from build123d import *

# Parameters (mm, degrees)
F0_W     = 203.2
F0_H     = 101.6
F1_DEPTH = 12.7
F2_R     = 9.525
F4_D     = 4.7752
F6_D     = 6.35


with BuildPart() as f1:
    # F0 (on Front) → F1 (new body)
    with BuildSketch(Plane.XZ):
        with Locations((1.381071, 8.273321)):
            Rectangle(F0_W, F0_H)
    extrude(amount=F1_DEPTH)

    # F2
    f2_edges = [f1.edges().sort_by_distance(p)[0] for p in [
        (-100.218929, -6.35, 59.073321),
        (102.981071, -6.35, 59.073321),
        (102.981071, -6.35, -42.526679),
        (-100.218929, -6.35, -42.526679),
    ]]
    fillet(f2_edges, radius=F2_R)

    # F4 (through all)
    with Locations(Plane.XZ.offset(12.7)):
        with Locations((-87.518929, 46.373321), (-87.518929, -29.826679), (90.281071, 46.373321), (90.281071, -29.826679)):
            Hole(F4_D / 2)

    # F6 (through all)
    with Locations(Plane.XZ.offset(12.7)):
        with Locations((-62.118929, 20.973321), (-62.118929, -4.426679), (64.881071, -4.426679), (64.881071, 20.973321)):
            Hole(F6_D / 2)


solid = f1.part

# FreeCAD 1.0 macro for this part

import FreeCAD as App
import Part
import Sketcher

V = App.Vector
Q = App.Units.Quantity


def edges_at(feature, points):
    """Names of the edges that pass closest to the given points."""
    edges = feature.Shape.Edges
    near = lambda p: min(range(len(edges)), key=lambda i: edges[i].distToShape(Part.Vertex(*p))[0])
    return sorted({f"Edge{near(p) + 1}" for p in points})


def add_polygon(sketch, points):
    """Adds a closed chain of lines whose ends are joined by coincident constraints."""
    first, n = sketch.GeometryCount, len(points)
    for a, b in zip(points, points[1:] + points[:1]):
        sketch.addGeometry(Part.LineSegment(App.Vector(*a, 0), App.Vector(*b, 0)), False)
    for i in range(n):
        sketch.addConstraint(Sketcher.Constraint("Coincident", first + i, 2, first + (i + 1) % n, 1))

doc = App.newDocument("Part")
params = doc.addObject("Spreadsheet::Sheet", "Params")
for row, (alias, value) in enumerate([
    ("sketch1_width", "8 in"),
    ("sketch1_height", "4 in"),
    ("pad1_length", "0.5 in"),
    ("fillet_radius", "0.375 in"),
    ("sketch2_diameter", "0.188 in"),
    ("hole_diameter", "0.188 in"),
    ("sketch3_diameter", "0.25 in"),
    ("hole2_diameter", "0.25 in"),
], start=1):
    params.set(f"A{row}", alias)
    params.set(f"B{row}", "=" + value)
    params.setAlias(f"B{row}", alias)

body = doc.addObject("PartDesign::Body", "Body")

# Sketch on XZ plane
sketch1 = doc.addObject("Sketcher::SketchObject", "Sketch")
body.addObject(sketch1)
sketch1.AttachmentSupport = (doc.XZ_Plane, [""])
sketch1.MapMode = "FlatFace"
add_polygon(sketch1, [(-100.218929, 59.073321), (-100.218929, -42.526679), (102.981071, -42.526679), (102.981071, 59.073321)])  # lines 0-3
sketch1.addConstraint([
    Sketcher.Constraint("Vertical", 0),
    Sketcher.Constraint("Horizontal", 1),
    Sketcher.Constraint("Vertical", 2),
    Sketcher.Constraint("Horizontal", 3),
    Sketcher.Constraint("DistanceX", 1, 1, 1, 2, Q("8 in")),
    Sketcher.Constraint("DistanceY", 0, 2, 0, 1, Q("4 in")),
    Sketcher.Constraint("DistanceX", 0, 2, -1, 1, Q("100.218929 mm")),
    Sketcher.Constraint("DistanceY", 0, 2, -1, 1, Q("42.526679 mm")),
])
sketch1.setExpression("Constraints[8]", "Params.sketch1_width")
sketch1.setExpression("Constraints[9]", "Params.sketch1_height")
pad1 = doc.addObject("PartDesign::Pad", "Pad")
body.addObject(pad1)
pad1.Profile = sketch1
pad1.setExpression("Length", "Params.pad1_length")
doc.recompute()

fillet = doc.addObject("PartDesign::Fillet", "Fillet")
body.addObject(fillet)
fillet.Base = (pad1, edges_at(pad1, [
    (-100.219, -6.35, 59.073),
    (102.981, -6.35, 59.073),
    (102.981, -6.35, -42.527),
    (-100.219, -6.35, -42.527),
]))
fillet.setExpression("Radius", "Params.fillet_radius")

# Sketch on XZ plane
sketch2 = doc.addObject("Sketcher::SketchObject", "Sketch001")
body.addObject(sketch2)
sketch2.AttachmentSupport = (doc.XZ_Plane, [""])
sketch2.MapMode = "FlatFace"
sketch2.AttachmentOffset = App.Placement(V(0, 0, 0.5 * 25.4), App.Rotation())
sketch2.addGeometry([
    Part.Circle(V(-87.518929, 46.373321, 0), V(0, 0, 1), 2.3876),
    Part.Circle(V(-87.518929, -29.826679, 0), V(0, 0, 1), 2.3876),
    Part.Circle(V(90.281071, 46.373321, 0), V(0, 0, 1), 2.3876),
    Part.Circle(V(90.281071, -29.826679, 0), V(0, 0, 1), 2.3876),
], False)
sketch2.addConstraint([
    Sketcher.Constraint("Equal", 0, 1),
    Sketcher.Constraint("Equal", 1, 2),
    Sketcher.Constraint("Equal", 2, 3),
    Sketcher.Constraint("Horizontal", 0, 3, 2, 3),
    Sketcher.Constraint("Horizontal", 1, 3, 3, 3),
    Sketcher.Constraint("Vertical", 0, 3, 1, 3),
    Sketcher.Constraint("Vertical", 2, 3, 3, 3),
    Sketcher.Constraint("Diameter", 0, Q("0.188 in")),
    Sketcher.Constraint("DistanceY", 1, 3, 0, 3, Q("3 in")),
    Sketcher.Constraint("DistanceX", 0, 3, 2, 3, Q("7 in")),
    Sketcher.Constraint("DistanceX", 0, 3, -1, 1, Q("87.518929 mm")),
    Sketcher.Constraint("DistanceY", -1, 1, 0, 3, Q("46.373321 mm")),
])
sketch2.setExpression("Constraints[7]", "Params.sketch2_diameter")
doc.recompute()
hole = doc.addObject("PartDesign::Hole", "Hole")
body.addObject(hole)
hole.Profile = sketch2
hole.ThreadType = "None"
hole.setExpression("Diameter", "Params.hole_diameter")
hole.DepthType = "ThroughAll"

# Sketch on XZ plane
sketch3 = doc.addObject("Sketcher::SketchObject", "Sketch002")
body.addObject(sketch3)
sketch3.AttachmentSupport = (doc.XZ_Plane, [""])
sketch3.MapMode = "FlatFace"
sketch3.AttachmentOffset = App.Placement(V(0, 0, 0.5 * 25.4), App.Rotation())
sketch3.addGeometry([
    Part.Circle(V(-62.118929, 20.973321, 0), V(0, 0, 1), 3.175),
    Part.Circle(V(-62.118929, -4.426679, 0), V(0, 0, 1), 3.175),
    Part.Circle(V(64.881071, -4.426679, 0), V(0, 0, 1), 3.175),
    Part.Circle(V(64.881071, 20.973321, 0), V(0, 0, 1), 3.175),
], False)
sketch3.addConstraint([
    Sketcher.Constraint("Equal", 0, 1),
    Sketcher.Constraint("Equal", 1, 2),
    Sketcher.Constraint("Equal", 2, 3),
    Sketcher.Constraint("Horizontal", 1, 3, 2, 3),
    Sketcher.Constraint("Horizontal", 0, 3, 3, 3),
    Sketcher.Constraint("Vertical", 0, 3, 1, 3),
    Sketcher.Constraint("Vertical", 2, 3, 3, 3),
    Sketcher.Constraint("Diameter", 0, Q("0.25 in")),
    Sketcher.Constraint("DistanceY", 1, 3, 0, 3, Q("1 in")),
    Sketcher.Constraint("DistanceX", 1, 3, 2, 3, Q("5 in")),
    Sketcher.Constraint("DistanceX", 0, 3, -1, 1, Q("62.118929 mm")),
    Sketcher.Constraint("DistanceY", -1, 1, 0, 3, Q("20.973321 mm")),
])
sketch3.setExpression("Constraints[7]", "Params.sketch3_diameter")
doc.recompute()
hole2 = doc.addObject("PartDesign::Hole", "Hole001")
body.addObject(hole2)
hole2.Profile = sketch3
hole2.ThreadType = "None"
hole2.setExpression("Diameter", "Params.hole2_diameter")
hole2.DepthType = "ThroughAll"

doc.recompute()
